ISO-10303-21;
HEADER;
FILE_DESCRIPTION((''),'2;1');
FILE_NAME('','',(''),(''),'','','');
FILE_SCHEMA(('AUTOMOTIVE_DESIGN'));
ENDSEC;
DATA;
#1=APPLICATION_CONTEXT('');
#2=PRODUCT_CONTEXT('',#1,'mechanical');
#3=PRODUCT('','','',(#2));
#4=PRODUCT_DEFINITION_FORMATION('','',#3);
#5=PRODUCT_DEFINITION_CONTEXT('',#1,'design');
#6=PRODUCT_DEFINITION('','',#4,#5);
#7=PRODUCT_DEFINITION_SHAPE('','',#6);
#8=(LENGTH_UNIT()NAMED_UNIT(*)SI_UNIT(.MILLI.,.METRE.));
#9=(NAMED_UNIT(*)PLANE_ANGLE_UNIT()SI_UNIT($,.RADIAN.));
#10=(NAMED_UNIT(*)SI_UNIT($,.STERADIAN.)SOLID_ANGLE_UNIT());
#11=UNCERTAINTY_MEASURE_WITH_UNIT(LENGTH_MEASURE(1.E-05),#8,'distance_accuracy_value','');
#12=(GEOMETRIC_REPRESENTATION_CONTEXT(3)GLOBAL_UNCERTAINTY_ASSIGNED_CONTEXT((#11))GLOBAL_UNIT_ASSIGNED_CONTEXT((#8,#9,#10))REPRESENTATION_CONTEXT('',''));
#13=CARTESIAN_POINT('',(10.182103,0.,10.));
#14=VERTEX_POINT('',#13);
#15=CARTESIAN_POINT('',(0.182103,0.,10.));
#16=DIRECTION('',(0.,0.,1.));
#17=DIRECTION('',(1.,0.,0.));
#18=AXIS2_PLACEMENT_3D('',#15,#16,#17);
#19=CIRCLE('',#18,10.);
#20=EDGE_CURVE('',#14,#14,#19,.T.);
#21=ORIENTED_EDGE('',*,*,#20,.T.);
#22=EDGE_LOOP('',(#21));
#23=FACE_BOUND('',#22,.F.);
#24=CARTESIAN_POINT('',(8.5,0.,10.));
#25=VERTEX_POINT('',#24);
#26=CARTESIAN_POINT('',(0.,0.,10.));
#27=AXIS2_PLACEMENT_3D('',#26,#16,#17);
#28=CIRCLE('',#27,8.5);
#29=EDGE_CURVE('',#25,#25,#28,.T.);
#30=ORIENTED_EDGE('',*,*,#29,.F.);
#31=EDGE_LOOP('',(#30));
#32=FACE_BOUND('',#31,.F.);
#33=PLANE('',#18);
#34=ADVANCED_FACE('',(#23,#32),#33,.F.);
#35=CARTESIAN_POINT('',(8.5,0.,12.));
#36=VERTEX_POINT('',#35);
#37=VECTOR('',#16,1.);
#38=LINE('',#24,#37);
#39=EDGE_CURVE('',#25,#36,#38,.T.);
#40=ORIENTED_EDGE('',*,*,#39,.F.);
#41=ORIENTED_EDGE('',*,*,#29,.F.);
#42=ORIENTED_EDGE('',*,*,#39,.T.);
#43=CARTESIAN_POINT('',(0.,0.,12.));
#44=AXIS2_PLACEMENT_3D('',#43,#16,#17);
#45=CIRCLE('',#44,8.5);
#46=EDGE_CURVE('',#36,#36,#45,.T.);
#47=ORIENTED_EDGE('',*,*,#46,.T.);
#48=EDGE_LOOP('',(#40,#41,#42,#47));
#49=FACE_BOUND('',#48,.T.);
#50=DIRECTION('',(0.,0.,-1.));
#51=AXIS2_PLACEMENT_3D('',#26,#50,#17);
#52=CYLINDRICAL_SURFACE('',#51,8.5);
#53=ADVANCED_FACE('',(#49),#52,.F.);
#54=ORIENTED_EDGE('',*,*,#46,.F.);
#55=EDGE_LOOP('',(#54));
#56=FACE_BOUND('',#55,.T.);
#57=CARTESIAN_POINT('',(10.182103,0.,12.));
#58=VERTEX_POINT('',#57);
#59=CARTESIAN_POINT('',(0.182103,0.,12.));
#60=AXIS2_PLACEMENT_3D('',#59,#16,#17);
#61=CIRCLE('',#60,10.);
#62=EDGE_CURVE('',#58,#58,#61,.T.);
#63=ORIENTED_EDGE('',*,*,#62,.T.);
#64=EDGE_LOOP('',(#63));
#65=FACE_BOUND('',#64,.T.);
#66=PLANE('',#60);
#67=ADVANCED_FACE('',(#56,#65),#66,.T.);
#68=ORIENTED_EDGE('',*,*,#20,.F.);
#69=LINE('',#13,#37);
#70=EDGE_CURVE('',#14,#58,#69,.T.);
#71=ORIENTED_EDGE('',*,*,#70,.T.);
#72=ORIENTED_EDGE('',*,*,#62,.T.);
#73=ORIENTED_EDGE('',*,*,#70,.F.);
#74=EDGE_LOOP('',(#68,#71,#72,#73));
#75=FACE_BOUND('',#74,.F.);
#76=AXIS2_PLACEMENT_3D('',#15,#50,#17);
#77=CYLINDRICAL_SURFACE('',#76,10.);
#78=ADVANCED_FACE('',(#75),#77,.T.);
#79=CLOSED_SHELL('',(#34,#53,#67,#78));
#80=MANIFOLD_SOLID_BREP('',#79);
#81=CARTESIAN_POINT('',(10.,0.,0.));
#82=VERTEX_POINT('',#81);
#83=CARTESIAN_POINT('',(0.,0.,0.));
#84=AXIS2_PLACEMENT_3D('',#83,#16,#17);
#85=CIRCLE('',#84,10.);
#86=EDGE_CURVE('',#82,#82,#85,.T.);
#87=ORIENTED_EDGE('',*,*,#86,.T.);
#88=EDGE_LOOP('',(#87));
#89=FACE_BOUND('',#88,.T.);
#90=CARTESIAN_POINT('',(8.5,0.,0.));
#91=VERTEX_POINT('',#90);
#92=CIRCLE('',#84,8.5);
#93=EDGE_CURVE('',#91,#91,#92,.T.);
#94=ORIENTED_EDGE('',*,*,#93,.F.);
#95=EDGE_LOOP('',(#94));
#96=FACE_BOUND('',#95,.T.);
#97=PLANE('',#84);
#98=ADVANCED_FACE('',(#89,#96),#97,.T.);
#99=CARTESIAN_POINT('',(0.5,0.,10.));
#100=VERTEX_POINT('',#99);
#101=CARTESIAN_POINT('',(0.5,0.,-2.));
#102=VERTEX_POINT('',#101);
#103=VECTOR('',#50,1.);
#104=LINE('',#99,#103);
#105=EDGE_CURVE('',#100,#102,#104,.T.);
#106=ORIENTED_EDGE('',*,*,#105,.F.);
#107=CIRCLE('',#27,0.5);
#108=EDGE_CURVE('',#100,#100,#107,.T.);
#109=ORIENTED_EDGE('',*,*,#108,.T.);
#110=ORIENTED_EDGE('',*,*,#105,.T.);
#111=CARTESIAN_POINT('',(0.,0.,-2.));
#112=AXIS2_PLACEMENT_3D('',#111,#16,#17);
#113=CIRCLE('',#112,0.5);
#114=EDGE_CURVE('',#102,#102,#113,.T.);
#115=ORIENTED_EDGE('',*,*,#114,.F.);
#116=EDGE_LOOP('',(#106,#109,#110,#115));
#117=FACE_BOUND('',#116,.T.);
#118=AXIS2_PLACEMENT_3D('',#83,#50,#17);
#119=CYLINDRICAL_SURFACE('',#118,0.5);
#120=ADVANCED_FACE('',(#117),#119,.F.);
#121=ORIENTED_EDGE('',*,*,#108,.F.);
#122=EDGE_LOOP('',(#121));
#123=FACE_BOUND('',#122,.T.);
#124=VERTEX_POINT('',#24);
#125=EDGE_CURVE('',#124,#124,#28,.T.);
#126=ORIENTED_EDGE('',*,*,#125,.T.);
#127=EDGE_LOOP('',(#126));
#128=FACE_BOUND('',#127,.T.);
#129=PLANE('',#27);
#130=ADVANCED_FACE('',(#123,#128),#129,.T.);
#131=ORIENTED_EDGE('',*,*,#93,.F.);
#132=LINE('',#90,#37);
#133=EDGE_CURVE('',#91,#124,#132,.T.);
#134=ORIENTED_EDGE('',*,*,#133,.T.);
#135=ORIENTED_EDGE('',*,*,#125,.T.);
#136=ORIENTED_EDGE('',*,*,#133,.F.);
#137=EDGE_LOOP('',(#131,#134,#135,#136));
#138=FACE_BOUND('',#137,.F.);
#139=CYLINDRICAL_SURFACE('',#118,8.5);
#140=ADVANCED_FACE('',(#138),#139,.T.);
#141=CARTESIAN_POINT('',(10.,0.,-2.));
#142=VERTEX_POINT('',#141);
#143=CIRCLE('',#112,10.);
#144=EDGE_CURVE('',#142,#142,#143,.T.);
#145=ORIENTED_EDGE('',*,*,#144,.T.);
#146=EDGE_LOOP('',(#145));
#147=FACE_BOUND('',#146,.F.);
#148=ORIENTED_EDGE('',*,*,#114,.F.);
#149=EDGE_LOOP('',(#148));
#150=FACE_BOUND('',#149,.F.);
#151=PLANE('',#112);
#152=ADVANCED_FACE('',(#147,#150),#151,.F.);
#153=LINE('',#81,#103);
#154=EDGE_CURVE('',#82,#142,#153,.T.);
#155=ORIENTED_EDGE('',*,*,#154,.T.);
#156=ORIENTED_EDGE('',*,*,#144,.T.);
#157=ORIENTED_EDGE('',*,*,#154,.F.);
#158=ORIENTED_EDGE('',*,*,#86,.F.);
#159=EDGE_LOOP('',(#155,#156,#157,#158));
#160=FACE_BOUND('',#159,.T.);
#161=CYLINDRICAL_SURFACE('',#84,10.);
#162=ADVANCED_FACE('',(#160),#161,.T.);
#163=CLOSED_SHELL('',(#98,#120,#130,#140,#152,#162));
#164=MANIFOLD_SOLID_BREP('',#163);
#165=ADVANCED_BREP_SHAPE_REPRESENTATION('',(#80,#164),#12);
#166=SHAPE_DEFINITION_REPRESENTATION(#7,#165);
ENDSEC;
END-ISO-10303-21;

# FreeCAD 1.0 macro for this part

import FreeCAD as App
import Part
import Sketcher

doc = App.newDocument("Part")
body = doc.addObject("PartDesign::Body", "Body")

sketch1 = body.newObject("Sketcher::SketchObject", "Sketch")
sketch1.AttachmentSupport = (doc.getObject("XY_Plane"), [""])
sketch1.MapMode = "FlatFace"
sketch1.addGeometry([
    Part.Circle(App.Vector(0, 0, 0), App.Vector(0, 0, 1), 10),
    Part.Circle(App.Vector(0, 0, 0), App.Vector(0, 0, 1), 0.5),
], False)
sketch1.addConstraint([
    Sketcher.Constraint("Coincident", 0, 3, -1, 1),
    Sketcher.Constraint("Coincident", 1, 3, -1, 1),
    Sketcher.Constraint("Diameter", 0, 20.0),
    Sketcher.Constraint("Diameter", 1, 1.0),
])
pad1 = body.newObject("PartDesign::Pad", "Pad")
pad1.Profile = sketch1
pad1.Length = 2
pad1.Reversed = True

sketch2 = body.newObject("Sketcher::SketchObject", "Sketch001")
sketch2.AttachmentSupport = (doc.getObject("XY_Plane"), [""])
sketch2.MapMode = "FlatFace"
sketch2.addGeometry([
    Part.Circle(App.Vector(0, 0, 0), App.Vector(0, 0, 1), 8.5),
    Part.Circle(App.Vector(0, 0, 0), App.Vector(0, 0, 1), 0.5),
], False)
sketch2.addConstraint([
    Sketcher.Constraint("Coincident", 0, 3, -1, 1),
    Sketcher.Constraint("Coincident", 1, 3, -1, 1),
    Sketcher.Constraint("Diameter", 0, 17.0),
    Sketcher.Constraint("Diameter", 1, 1.0),
])
pad2 = body.newObject("PartDesign::Pad", "Pad001")
pad2.Profile = sketch2
pad2.Length = 10
body2 = doc.addObject("PartDesign::Body", "Body001")

sketch3 = body2.newObject("Sketcher::SketchObject", "Sketch002")
sketch3.AttachmentSupport = (doc.getObject("XY_Plane001"), [""])
sketch3.MapMode = "FlatFace"
sketch3.AttachmentOffset = App.Placement(App.Vector(0, 0, 10), App.Rotation())
sketch3.addGeometry([
    Part.Circle(App.Vector(0, 0, 0), App.Vector(0, 0, 1), 10),
    Part.Circle(App.Vector(0, 0, 0), App.Vector(0, 0, 1), 8),
], False)
sketch3.addConstraint([
    Sketcher.Constraint("Coincident", 1, 3, -1, 1),
    Sketcher.Constraint("PointOnObject", 0, 3, -1),
    Sketcher.Constraint("Diameter", 0, 20.0),
    Sketcher.Constraint("Diameter", 1, 17.0),
    Sketcher.Constraint("DistanceX", -1, 1, 0, 3, 0.182103),
])
pad3 = body2.newObject("PartDesign::Pad", "Pad002")
pad3.Profile = sketch3
pad3.Length = 2

doc.recompute()
